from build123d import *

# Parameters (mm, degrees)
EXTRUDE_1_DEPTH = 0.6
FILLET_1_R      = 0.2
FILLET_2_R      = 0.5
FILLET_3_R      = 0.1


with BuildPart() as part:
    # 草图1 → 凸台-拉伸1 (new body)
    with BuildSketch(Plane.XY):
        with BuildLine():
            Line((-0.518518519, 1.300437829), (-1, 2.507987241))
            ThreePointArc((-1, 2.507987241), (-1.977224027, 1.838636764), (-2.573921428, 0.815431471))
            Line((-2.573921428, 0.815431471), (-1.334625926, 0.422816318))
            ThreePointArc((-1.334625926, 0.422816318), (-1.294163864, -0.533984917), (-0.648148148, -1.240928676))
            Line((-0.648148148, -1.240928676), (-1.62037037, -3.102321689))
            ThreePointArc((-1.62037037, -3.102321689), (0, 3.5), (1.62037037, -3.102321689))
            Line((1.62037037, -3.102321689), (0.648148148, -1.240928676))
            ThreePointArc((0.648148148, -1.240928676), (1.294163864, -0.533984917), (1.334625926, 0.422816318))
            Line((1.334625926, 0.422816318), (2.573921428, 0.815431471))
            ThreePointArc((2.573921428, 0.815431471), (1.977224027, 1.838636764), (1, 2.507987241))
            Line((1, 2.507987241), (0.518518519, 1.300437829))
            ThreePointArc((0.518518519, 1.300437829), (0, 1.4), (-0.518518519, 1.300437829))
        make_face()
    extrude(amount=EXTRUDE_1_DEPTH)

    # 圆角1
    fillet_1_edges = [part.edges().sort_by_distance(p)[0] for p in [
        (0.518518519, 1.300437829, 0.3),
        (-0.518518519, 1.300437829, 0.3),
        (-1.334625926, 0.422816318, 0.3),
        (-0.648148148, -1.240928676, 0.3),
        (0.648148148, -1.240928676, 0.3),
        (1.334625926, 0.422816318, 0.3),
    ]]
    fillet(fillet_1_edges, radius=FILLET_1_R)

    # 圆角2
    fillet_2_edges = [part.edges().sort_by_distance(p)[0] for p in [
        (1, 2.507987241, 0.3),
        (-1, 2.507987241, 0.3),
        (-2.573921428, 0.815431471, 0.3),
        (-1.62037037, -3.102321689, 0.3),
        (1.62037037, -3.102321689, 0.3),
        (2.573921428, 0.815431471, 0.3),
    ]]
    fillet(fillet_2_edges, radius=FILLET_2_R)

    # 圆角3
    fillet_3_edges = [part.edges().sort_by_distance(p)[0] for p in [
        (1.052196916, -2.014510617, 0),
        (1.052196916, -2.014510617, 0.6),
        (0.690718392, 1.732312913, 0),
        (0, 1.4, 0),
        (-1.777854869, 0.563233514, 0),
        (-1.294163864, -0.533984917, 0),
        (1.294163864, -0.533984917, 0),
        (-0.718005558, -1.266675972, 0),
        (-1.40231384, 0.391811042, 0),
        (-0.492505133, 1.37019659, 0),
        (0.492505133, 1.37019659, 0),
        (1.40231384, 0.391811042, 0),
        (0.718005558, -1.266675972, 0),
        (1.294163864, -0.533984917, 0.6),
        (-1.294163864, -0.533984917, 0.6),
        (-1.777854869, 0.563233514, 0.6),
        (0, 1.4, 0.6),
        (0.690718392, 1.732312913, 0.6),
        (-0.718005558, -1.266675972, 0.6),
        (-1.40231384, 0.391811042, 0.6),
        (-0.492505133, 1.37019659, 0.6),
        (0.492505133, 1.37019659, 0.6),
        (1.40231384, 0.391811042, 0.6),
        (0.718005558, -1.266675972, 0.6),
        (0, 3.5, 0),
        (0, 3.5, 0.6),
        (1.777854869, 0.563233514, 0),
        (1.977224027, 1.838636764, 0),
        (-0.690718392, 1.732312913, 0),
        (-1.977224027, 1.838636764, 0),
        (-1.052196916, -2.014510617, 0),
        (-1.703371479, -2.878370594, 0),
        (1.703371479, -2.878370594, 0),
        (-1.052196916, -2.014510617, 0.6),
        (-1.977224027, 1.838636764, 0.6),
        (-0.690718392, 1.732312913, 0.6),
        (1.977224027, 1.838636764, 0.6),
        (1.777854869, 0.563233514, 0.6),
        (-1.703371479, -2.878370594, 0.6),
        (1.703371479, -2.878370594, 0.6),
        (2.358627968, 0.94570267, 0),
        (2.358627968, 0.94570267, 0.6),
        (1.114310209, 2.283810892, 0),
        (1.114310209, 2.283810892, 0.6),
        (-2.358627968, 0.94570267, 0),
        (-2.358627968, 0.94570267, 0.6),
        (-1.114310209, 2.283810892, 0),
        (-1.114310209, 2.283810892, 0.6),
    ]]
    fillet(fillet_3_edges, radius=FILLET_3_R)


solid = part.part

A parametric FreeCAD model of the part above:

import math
import FreeCAD as App
import Part
import Sketcher


def edges_at(feature, points):
    """Names of the edges that pass closest to the given points."""
    edges = feature.Shape.Edges
    near = lambda p: min(range(len(edges)), key=lambda i: edges[i].distToShape(Part.Vertex(*p))[0])
    return sorted({f"Edge{near(p) + 1}" for p in points})

doc = App.newDocument("Part")
body = doc.addObject("PartDesign::Body", "Body")

# Sketch on XY plane
sketch1 = body.newObject("Sketcher::SketchObject", "Sketch")
sketch1.AttachmentSupport = (doc.getObject("XY_Plane"), [""])
sketch1.MapMode = "FlatFace"
sketch1.addGeometry(Part.LineSegment(App.Vector(-1, 2.5, 0), App.Vector(-0.5, 1.3, 0)), False)
sketch1.addGeometry(Part.ArcOfCircle(Part.Circle(App.Vector(0, 0, 0), App.Vector(0, 0, 1), 1.4), math.radians(68), math.radians(112)), False)
sketch1.addGeometry(Part.LineSegment(App.Vector(0.5, 1.3, 0), App.Vector(1, 2.5, 0)), False)
sketch1.addGeometry(Part.ArcOfCircle(Part.Circle(App.Vector(0, 0, 0), App.Vector(0, 0, 1), 2.7), math.radians(18), math.radians(68)), False)
sketch1.addGeometry(Part.LineSegment(App.Vector(2.6, 0.8, 0), App.Vector(1.3, 0.4, 0)), False)
sketch1.addGeometry(Part.ArcOfCircle(Part.Circle(App.Vector(0, 0, 0), App.Vector(0, 0, 1), 1.4), math.radians(-62), math.radians(18)), False)
sketch1.addGeometry(Part.LineSegment(App.Vector(0.6, -1.2, 0), App.Vector(1.6, -3.1, 0)), False)
sketch1.addGeometry(Part.ArcOfCircle(Part.Circle(App.Vector(0, 0, 0), App.Vector(0, 0, 1), 3.5), math.radians(-62), math.radians(242)), False)
sketch1.addGeometry(Part.LineSegment(App.Vector(-1.6, -3.1, 0), App.Vector(-0.6, -1.2, 0)), False)
sketch1.addGeometry(Part.ArcOfCircle(Part.Circle(App.Vector(0, 0, 0), App.Vector(0, 0, 1), 1.4), math.radians(162), math.radians(242)), False)
sketch1.addGeometry(Part.LineSegment(App.Vector(-1.3, 0.4, 0), App.Vector(-2.6, 0.8, 0)), False)
sketch1.addGeometry(Part.ArcOfCircle(Part.Circle(App.Vector(0, 0, 0), App.Vector(0, 0, 1), 2.7), math.radians(112), math.radians(162)), False)
sketch1.addConstraint(Sketcher.Constraint("Coincident", 0, 2, 1, 2))
sketch1.addConstraint(Sketcher.Constraint("Coincident", 1, 1, 2, 1))
sketch1.addConstraint(Sketcher.Constraint("Coincident", 2, 2, 3, 2))
sketch1.addConstraint(Sketcher.Constraint("Coincident", 3, 1, 4, 1))
sketch1.addConstraint(Sketcher.Constraint("Coincident", 4, 2, 5, 2))
sketch1.addConstraint(Sketcher.Constraint("Coincident", 5, 1, 6, 1))
sketch1.addConstraint(Sketcher.Constraint("Coincident", 6, 2, 7, 1))
sketch1.addConstraint(Sketcher.Constraint("Coincident", 7, 2, 8, 1))
sketch1.addConstraint(Sketcher.Constraint("Coincident", 8, 2, 9, 2))
sketch1.addConstraint(Sketcher.Constraint("Coincident", 9, 1, 10, 1))
sketch1.addConstraint(Sketcher.Constraint("Coincident", 10, 2, 11, 2))
sketch1.addConstraint(Sketcher.Constraint("Coincident", 11, 1, 0, 1))
sketch1.addConstraint(Sketcher.Constraint("Coincident", 1, 3, -1, 1))
sketch1.addConstraint(Sketcher.Constraint("Coincident", 3, 3, -1, 1))
sketch1.addConstraint(Sketcher.Constraint("Coincident", 5, 3, -1, 1))
sketch1.addConstraint(Sketcher.Constraint("Coincident", 7, 3, -1, 1))
sketch1.addConstraint(Sketcher.Constraint("Coincident", 9, 3, -1, 1))
sketch1.addConstraint(Sketcher.Constraint("Coincident", 11, 3, -1, 1))
sketch1.addConstraint(Sketcher.Constraint("Equal", 1, 5))
sketch1.addConstraint(Sketcher.Constraint("Equal", 5, 9))
sketch1.addConstraint(Sketcher.Constraint("Equal", 3, 11))
sketch1.addConstraint(Sketcher.Constraint("Horizontal", 0, 2, 1, 1))
sketch1.addConstraint(Sketcher.Constraint("Horizontal", 6, 2, 7, 2))
sketch1.addConstraint(Sketcher.Constraint("Horizontal", 5, 1, 8, 2))
sketch1.addConstraint(Sketcher.Constraint("Horizontal", 4, 2, 9, 1))
sketch1.addConstraint(Sketcher.Constraint("Horizontal", 3, 1, 10, 2))
sketch1.addConstraint(Sketcher.Constraint("Horizontal", 2, 2, 11, 1))
sketch1.addConstraint(Sketcher.Constraint("Radius", 1, 1.4))
sketch1.addConstraint(Sketcher.Constraint("Radius", 3, 2.7))
sketch1.addConstraint(Sketcher.Constraint("Radius", 7, 3.5))
sketch1.addConstraint(Sketcher.Constraint("DistanceX", -1, 1, 2, 2, 1.0))
sketch1.addConstraint(Sketcher.Constraint("DistanceX", 0, 2, -1, 1, 0.518519))
sketch1.addConstraint(Sketcher.Constraint("DistanceX", -1, 1, 3, 1, 2.573921))
sketch1.addConstraint(Sketcher.Constraint("DistanceX", -1, 1, 5, 1, 0.648148))
sketch1.addConstraint(Sketcher.Constraint("DistanceX", -1, 1, 6, 2, 1.62037))
sketch1.addConstraint(Sketcher.Constraint("DistanceY", 4, 2, 1, 1, 0.877622))
pad1 = body.newObject("PartDesign::Pad", "Pad")
pad1.Profile = sketch1
pad1.Length = 0.6
doc.recompute()

fillet = body.newObject("PartDesign::Fillet", "Fillet")
fillet.Base = (pad1, edges_at(pad1, [
    (0.519, 1.3, 0.3),
    (-0.519, 1.3, 0.3),
    (-1.335, 0.423, 0.3),
    (-0.648, -1.241, 0.3),
    (0.648, -1.241, 0.3),
    (1.335, 0.423, 0.3),
]))
fillet.Radius = 0.2
doc.recompute()

fillet2 = body.newObject("PartDesign::Fillet", "Fillet001")
fillet2.Base = (fillet, edges_at(fillet, [
    (1, 2.508, 0.3),
    (-1, 2.508, 0.3),
    (-2.574, 0.815, 0.3),
    (-1.62, -3.102, 0.3),
    (1.62, -3.102, 0.3),
    (2.574, 0.815, 0.3),
]))
fillet2.Radius = 0.5
doc.recompute()

fillet3 = body.newObject("PartDesign::Fillet", "Fillet002")
fillet3.Base = (fillet2, edges_at(fillet2, [
    (1.052, -2.015, 0),
    (1.052, -2.015, 0.6),
    (0.691, 1.732, 0),
    (0, 1.4, 0),
    (-1.778, 0.563, 0),
    (-1.294, -0.534, 0),
    (1.294, -0.534, 0),
    (-0.718, -1.267, 0),
    (-1.402, 0.392, 0),
    (-0.493, 1.37, 0),
    (0.493, 1.37, 0),
    (1.402, 0.392, 0),
    (0.718, -1.267, 0),
    (1.294, -0.534, 0.6),
    (-1.294, -0.534, 0.6),
    (-1.778, 0.563, 0.6),
    (0, 1.4, 0.6),
    (0.691, 1.732, 0.6),
    (-0.718, -1.267, 0.6),
    (-1.402, 0.392, 0.6),
    (-0.493, 1.37, 0.6),
    (0.493, 1.37, 0.6),
    (1.402, 0.392, 0.6),
    (0.718, -1.267, 0.6),
    (0, 3.5, 0),
    (0, 3.5, 0.6),
    (1.778, 0.563, 0),
    (1.977, 1.839, 0),
    (-0.691, 1.732, 0),
    (-1.977, 1.839, 0),
    (-1.052, -2.015, 0),
    (-1.703, -2.878, 0),
    (1.703, -2.878, 0),
    (-1.052, -2.015, 0.6),
    (-1.977, 1.839, 0.6),
    (-0.691, 1.732, 0.6),
    (1.977, 1.839, 0.6),
    (1.778, 0.563, 0.6),
    (-1.703, -2.878, 0.6),
    (1.703, -2.878, 0.6),
    (2.359, 0.946, 0),
    (2.359, 0.946, 0.6),
    (1.114, 2.284, 0),
    (1.114, 2.284, 0.6),
    (-2.359, 0.946, 0),
    (-2.359, 0.946, 0.6),
    (-1.114, 2.284, 0),
    (-1.114, 2.284, 0.6),
]))
fillet3.Radius = 0.1

doc.recompute()
